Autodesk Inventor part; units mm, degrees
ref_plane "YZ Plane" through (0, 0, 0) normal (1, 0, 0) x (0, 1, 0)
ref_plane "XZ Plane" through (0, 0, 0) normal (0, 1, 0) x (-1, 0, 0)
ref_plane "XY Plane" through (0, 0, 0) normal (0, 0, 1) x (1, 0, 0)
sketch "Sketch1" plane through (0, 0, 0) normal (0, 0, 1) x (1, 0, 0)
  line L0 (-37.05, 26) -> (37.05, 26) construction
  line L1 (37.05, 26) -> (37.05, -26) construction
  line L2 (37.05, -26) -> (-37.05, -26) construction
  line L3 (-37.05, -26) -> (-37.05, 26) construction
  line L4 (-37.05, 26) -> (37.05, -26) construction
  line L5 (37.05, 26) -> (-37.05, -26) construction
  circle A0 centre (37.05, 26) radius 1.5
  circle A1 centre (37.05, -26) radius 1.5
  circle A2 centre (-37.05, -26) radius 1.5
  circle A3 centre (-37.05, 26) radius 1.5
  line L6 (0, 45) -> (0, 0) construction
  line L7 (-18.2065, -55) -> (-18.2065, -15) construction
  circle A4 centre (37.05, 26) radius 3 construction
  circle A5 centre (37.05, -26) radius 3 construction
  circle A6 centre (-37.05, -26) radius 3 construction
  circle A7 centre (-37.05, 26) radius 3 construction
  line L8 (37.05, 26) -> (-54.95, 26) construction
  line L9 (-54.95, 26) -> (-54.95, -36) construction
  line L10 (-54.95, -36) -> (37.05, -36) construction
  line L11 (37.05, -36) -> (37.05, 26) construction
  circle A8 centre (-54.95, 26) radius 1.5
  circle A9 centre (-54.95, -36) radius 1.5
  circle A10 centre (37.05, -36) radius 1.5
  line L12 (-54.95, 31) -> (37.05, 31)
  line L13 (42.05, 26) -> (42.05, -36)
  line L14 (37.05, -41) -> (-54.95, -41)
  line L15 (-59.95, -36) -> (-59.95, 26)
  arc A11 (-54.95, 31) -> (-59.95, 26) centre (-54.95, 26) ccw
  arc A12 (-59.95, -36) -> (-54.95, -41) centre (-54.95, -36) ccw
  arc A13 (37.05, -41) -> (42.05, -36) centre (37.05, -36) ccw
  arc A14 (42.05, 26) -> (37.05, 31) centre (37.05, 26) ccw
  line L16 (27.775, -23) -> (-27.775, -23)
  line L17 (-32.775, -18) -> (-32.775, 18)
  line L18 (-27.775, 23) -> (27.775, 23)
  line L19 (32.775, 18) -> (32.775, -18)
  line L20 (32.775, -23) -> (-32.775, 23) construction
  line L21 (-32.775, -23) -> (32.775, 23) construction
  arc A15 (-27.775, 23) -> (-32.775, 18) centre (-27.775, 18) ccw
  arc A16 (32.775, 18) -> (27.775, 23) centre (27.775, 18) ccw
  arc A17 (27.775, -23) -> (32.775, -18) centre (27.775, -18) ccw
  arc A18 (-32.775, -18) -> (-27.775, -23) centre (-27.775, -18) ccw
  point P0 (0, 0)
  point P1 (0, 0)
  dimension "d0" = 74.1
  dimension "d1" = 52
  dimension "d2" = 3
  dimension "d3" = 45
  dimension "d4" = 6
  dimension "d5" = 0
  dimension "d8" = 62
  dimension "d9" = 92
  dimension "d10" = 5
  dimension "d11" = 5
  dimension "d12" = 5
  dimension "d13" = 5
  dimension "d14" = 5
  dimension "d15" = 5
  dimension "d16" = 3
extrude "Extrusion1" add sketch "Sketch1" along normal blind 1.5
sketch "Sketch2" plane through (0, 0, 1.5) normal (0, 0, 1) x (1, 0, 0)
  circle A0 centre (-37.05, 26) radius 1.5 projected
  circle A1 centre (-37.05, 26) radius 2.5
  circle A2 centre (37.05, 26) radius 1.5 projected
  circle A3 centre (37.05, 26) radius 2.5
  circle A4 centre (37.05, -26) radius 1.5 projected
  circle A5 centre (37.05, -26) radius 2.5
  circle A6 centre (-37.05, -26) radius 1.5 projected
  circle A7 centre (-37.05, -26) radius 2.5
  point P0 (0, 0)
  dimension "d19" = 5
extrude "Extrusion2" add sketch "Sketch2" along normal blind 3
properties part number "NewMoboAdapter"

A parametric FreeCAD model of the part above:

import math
import FreeCAD as App
import Part
import Sketcher

doc = App.newDocument("Part")
body = doc.addObject("PartDesign::Body", "Body")

sketch1 = body.newObject("Sketcher::SketchObject", "Sketch")
sketch1.AttachmentSupport = (doc.getObject("XY_Plane"), [""])
sketch1.MapMode = "FlatFace"
sketch1.addGeometry([
    Part.LineSegment(App.Vector(37.05, 31, 0), App.Vector(-54.95, 31, 0)),
    Part.ArcOfCircle(Part.Circle(App.Vector(-54.95, 26, 0), App.Vector(0, 0, 1), 5), math.radians(90), math.radians(180)),
    Part.LineSegment(App.Vector(-59.95, 26, 0), App.Vector(-59.95, -36, 0)),
    Part.ArcOfCircle(Part.Circle(App.Vector(-54.95, -36, 0), App.Vector(0, 0, 1), 5), math.radians(180), math.radians(270)),
    Part.LineSegment(App.Vector(-54.95, -41, 0), App.Vector(37.05, -41, 0)),
    Part.ArcOfCircle(Part.Circle(App.Vector(37.05, -36, 0), App.Vector(0, 0, 1), 5), math.radians(-90), math.radians(0)),
    Part.LineSegment(App.Vector(42.05, -36, 0), App.Vector(42.05, 26, 0)),
    Part.ArcOfCircle(Part.Circle(App.Vector(37.05, 26, 0), App.Vector(0, 0, 1), 5), math.radians(0), math.radians(90)),
    Part.Circle(App.Vector(-54.95, -36, 0), App.Vector(0, 0, 1), 1.5),
    Part.Circle(App.Vector(-37.05, -26, 0), App.Vector(0, 0, 1), 1.5),
    Part.Circle(App.Vector(37.05, -36, 0), App.Vector(0, 0, 1), 1.5),
    Part.Circle(App.Vector(37.05, -26, 0), App.Vector(0, 0, 1), 1.5),
    Part.Circle(App.Vector(-54.95, 26, 0), App.Vector(0, 0, 1), 1.5),
    Part.Circle(App.Vector(-37.05, 26, 0), App.Vector(0, 0, 1), 1.5),
    Part.ArcOfCircle(Part.Circle(App.Vector(27.775, -18, 0), App.Vector(0, 0, 1), 5), math.radians(-90), math.radians(0)),
    Part.LineSegment(App.Vector(27.775, -23, 0), App.Vector(-27.775, -23, 0)),
    Part.ArcOfCircle(Part.Circle(App.Vector(-27.775, -18, 0), App.Vector(0, 0, 1), 5), math.radians(180), math.radians(270)),
    Part.LineSegment(App.Vector(-32.775, -18, 0), App.Vector(-32.775, 18, 0)),
    Part.ArcOfCircle(Part.Circle(App.Vector(-27.775, 18, 0), App.Vector(0, 0, 1), 5), math.radians(90), math.radians(180)),
    Part.LineSegment(App.Vector(-27.775, 23, 0), App.Vector(27.775, 23, 0)),
    Part.ArcOfCircle(Part.Circle(App.Vector(27.775, 18, 0), App.Vector(0, 0, 1), 5), math.radians(0), math.radians(90)),
    Part.LineSegment(App.Vector(32.775, 18, 0), App.Vector(32.775, -18, 0)),
    Part.Circle(App.Vector(37.05, 26, 0), App.Vector(0, 0, 1), 1.5),
], False)
sketch1.addConstraint([
    Sketcher.Constraint("Tangent", 0, 2, 1, 1),
    Sketcher.Constraint("Tangent", 1, 2, 2, 1),
    Sketcher.Constraint("Tangent", 2, 2, 3, 1),
    Sketcher.Constraint("Tangent", 3, 2, 4, 1),
    Sketcher.Constraint("Tangent", 4, 2, 5, 1),
    Sketcher.Constraint("Tangent", 5, 2, 6, 1),
    Sketcher.Constraint("Tangent", 6, 2, 7, 1),
    Sketcher.Constraint("Tangent", 7, 2, 0, 1),
    Sketcher.Constraint("Tangent", 14, 1, 15, 1),
    Sketcher.Constraint("Tangent", 15, 2, 16, 2),
    Sketcher.Constraint("Tangent", 16, 1, 17, 1),
    Sketcher.Constraint("Tangent", 17, 2, 18, 2),
    Sketcher.Constraint("Tangent", 18, 1, 19, 1),
    Sketcher.Constraint("Tangent", 19, 2, 20, 2),
    Sketcher.Constraint("Tangent", 20, 1, 21, 1),
    Sketcher.Constraint("Tangent", 21, 2, 14, 2),
    Sketcher.Constraint("Horizontal", 0),
    Sketcher.Constraint("Vertical", 2),
    Sketcher.Constraint("Horizontal", 4),
    Sketcher.Constraint("Vertical", 6),
    Sketcher.Constraint("Horizontal", 15),
    Sketcher.Constraint("Vertical", 17),
    Sketcher.Constraint("Horizontal", 19),
    Sketcher.Constraint("Vertical", 21),
    Sketcher.Constraint("Coincident", 8, 3, 3, 3),
    Sketcher.Constraint("Coincident", 10, 3, 5, 3),
    Sketcher.Constraint("Coincident", 12, 3, 1, 3),
    Sketcher.Constraint("Coincident", 22, 3, 7, 3),
    Sketcher.Constraint("Equal", 1, 3),
    Sketcher.Constraint("Equal", 3, 5),
    Sketcher.Constraint("Equal", 5, 7),
    Sketcher.Constraint("Equal", 8, 9),
    Sketcher.Constraint("Equal", 9, 10),
    Sketcher.Constraint("Equal", 10, 11),
    Sketcher.Constraint("Equal", 11, 12),
    Sketcher.Constraint("Equal", 12, 13),
    Sketcher.Constraint("Equal", 7, 14),
    Sketcher.Constraint("Equal", 14, 16),
    Sketcher.Constraint("Equal", 16, 18),
    Sketcher.Constraint("Equal", 18, 20),
    Sketcher.Constraint("Equal", 13, 22),
    Sketcher.Constraint("Symmetric", 7, 3, 9, 3, -1, 1),
    Sketcher.Constraint("Symmetric", 11, 3, 13, 3, -1, 1),
    Sketcher.Constraint("Symmetric", 14, 3, 18, 3, -1, 1),
    Sketcher.Constraint("Symmetric", 9, 3, 11, 3, -2),
    Sketcher.Constraint("Diameter", 8, 3.0),
    Sketcher.Constraint("Radius", 1, 5.0),
    Sketcher.Constraint("DistanceX", 0, 2, 0, 1, 92.0),
    Sketcher.Constraint("DistanceY", 2, 2, 2, 1, 62.0),
    Sketcher.Constraint("DistanceY", 9, 3, 1, 3, 52.0),
    Sketcher.Constraint("DistanceY", 11, 3, 14, 1, 3.0),
    Sketcher.Constraint("DistanceX", 9, 3, 5, 3, 74.1),
    Sketcher.Constraint("DistanceX", 15, 2, 15, 1, 55.55),
])
pad1 = body.newObject("PartDesign::Pad", "Pad")
pad1.Profile = sketch1
pad1.Length = 1.5

sketch2 = body.newObject("Sketcher::SketchObject", "Sketch001")
sketch2.AttachmentSupport = (doc.getObject("XY_Plane"), [""])
sketch2.MapMode = "FlatFace"
sketch2.AttachmentOffset = App.Placement(App.Vector(0, 0, 1.5), App.Rotation())
sketch2.addGeometry([
    Part.Circle(App.Vector(-37.05, 26, 0), App.Vector(0, 0, 1), 2.5),
    Part.Circle(App.Vector(-37.05, 26, 0), App.Vector(0, 0, 1), 1.5),
    Part.Circle(App.Vector(37.05, 26, 0), App.Vector(0, 0, 1), 2.5),
    Part.Circle(App.Vector(37.05, 26, 0), App.Vector(0, 0, 1), 1.5),
    Part.Circle(App.Vector(37.05, -26, 0), App.Vector(0, 0, 1), 2.5),
    Part.Circle(App.Vector(37.05, -26, 0), App.Vector(0, 0, 1), 1.5),
    Part.Circle(App.Vector(-37.05, -26, 0), App.Vector(0, 0, 1), 2.5),
    Part.Circle(App.Vector(-37.05, -26, 0), App.Vector(0, 0, 1), 1.5),
], False)
sketch2.addConstraint([
    Sketcher.Constraint("Coincident", 1, 3, 0, 3),
    Sketcher.Constraint("Coincident", 3, 3, 2, 3),
    Sketcher.Constraint("Coincident", 5, 3, 4, 3),
    Sketcher.Constraint("Coincident", 7, 3, 6, 3),
    Sketcher.Constraint("Equal", 0, 2),
    Sketcher.Constraint("Equal", 1, 3),
    Sketcher.Constraint("Equal", 2, 4),
    Sketcher.Constraint("Equal", 3, 5),
    Sketcher.Constraint("Equal", 4, 6),
    Sketcher.Constraint("Equal", 5, 7),
    Sketcher.Constraint("Symmetric", 0, 3, 4, 3, -1, 1),
    Sketcher.Constraint("Symmetric", 2, 3, 6, 3, -1, 1),
    Sketcher.Constraint("Symmetric", 0, 3, 2, 3, -2),
    Sketcher.Constraint("Diameter", 0, 5.0),
    Sketcher.Constraint("Diameter", 1, 3.0),
    Sketcher.Constraint("DistanceY", -1, 1, 0, 3, 26.0),
    Sketcher.Constraint("DistanceX", 0, 3, 2, 3, 74.1),
])
pad2 = body.newObject("PartDesign::Pad", "Pad001")
pad2.Profile = sketch2
pad2.Length = 3

doc.recompute()
